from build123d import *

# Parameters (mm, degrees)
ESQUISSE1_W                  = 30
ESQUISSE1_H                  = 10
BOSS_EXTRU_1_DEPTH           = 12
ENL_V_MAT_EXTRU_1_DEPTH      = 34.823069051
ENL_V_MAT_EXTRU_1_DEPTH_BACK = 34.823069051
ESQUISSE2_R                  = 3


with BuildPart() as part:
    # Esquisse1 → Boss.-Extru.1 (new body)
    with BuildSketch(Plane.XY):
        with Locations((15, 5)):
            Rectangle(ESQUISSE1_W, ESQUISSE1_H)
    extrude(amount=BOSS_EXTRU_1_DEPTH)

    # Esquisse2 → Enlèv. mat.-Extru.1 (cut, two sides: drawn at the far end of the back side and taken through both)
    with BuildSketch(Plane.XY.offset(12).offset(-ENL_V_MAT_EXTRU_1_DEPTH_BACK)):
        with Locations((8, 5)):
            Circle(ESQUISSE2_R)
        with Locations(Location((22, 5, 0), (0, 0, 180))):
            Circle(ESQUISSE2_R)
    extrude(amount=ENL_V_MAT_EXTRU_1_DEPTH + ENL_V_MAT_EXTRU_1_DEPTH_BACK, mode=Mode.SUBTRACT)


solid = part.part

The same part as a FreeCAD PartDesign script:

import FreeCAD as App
import Part
import Sketcher
from FreeCAD import Vector
Q = App.Units.Quantity

doc = App.newDocument("Part")
params = doc.addObject("Spreadsheet::Sheet", "Params")
for row, (alias, value) in enumerate([
    ("sketch1_width", "30 mm"),
    ("sketch1_height", "10 mm"),
    ("pad1_length", "12 mm"),
    ("sketch2_diameter", "6 mm"),
], start=1):
    params.set(f"A{row}", alias)
    params.set(f"B{row}", "=" + value)
    params.setAlias(f"B{row}", alias)

body = doc.addObject("PartDesign::Body", "Body")

sketch1 = doc.addObject("Sketcher::SketchObject", "Sketch")
body.addObject(sketch1)
sketch1.AttachmentSupport = (doc.XY_Plane, [""])
sketch1.MapMode = "FlatFace"
sketch1.addGeometry([
    Part.LineSegment(Vector(0, 10, 0), Vector(0, 0, 0)),
    Part.LineSegment(Vector(0, 0, 0), Vector(30, 0, 0)),
    Part.LineSegment(Vector(30, 0, 0), Vector(30, 10, 0)),
    Part.LineSegment(Vector(30, 10, 0), Vector(0, 10, 0)),
], False)
sketch1.addConstraint([
    Sketcher.Constraint("Coincident", 0, 2, 1, 1),
    Sketcher.Constraint("Coincident", 1, 2, 2, 1),
    Sketcher.Constraint("Coincident", 2, 2, 3, 1),
    Sketcher.Constraint("Coincident", 3, 2, 0, 1),
    Sketcher.Constraint("Vertical", 0),
    Sketcher.Constraint("Horizontal", 1),
    Sketcher.Constraint("Vertical", 2),
    Sketcher.Constraint("Horizontal", 3),
    Sketcher.Constraint("Coincident", 0, 2, -1, 1),
    Sketcher.Constraint("DistanceX", 1, 1, 1, 2, Q("30 mm")),
    Sketcher.Constraint("DistanceY", 0, 2, 0, 1, Q("10 mm")),
])
sketch1.setExpression("Constraints[9]", "Params.sketch1_width")
sketch1.setExpression("Constraints[10]", "Params.sketch1_height")
pad1 = doc.addObject("PartDesign::Pad", "Pad")
body.addObject(pad1)
pad1.Profile = sketch1
pad1.setExpression("Length", "Params.pad1_length")

sketch2 = doc.addObject("Sketcher::SketchObject", "Sketch001")
body.addObject(sketch2)
sketch2.AttachmentSupport = (doc.XY_Plane, [""])
sketch2.MapMode = "FlatFace"
sketch2.AttachmentOffset = App.Placement(Vector(0, 0, 12), App.Rotation())
sketch2.addGeometry([
    Part.Circle(Vector(8, 5, 0), Vector(0, 0, 1), 3),
    Part.Circle(Vector(22, 5, 0), Vector(0, 0, 1), 3),
], False)
sketch2.addConstraint([
    Sketcher.Constraint("Equal", 0, 1),
    Sketcher.Constraint("Horizontal", 0, 3, 1, 3),
    Sketcher.Constraint("Diameter", 0, Q("6 mm")),
    Sketcher.Constraint("DistanceX", -1, 1, 0, 3, Q("8 mm")),
    Sketcher.Constraint("DistanceY", -1, 1, 0, 3, Q("5 mm")),
    Sketcher.Constraint("DistanceX", -1, 1, 1, 3, Q("22 mm")),
])
sketch2.setExpression("Constraints[2]", "Params.sketch2_diameter")
pocket1 = doc.addObject("PartDesign::Pocket", "Pocket")
body.addObject(pocket1)
pocket1.Profile = sketch2
pocket1.Type = "ThroughAll"
pocket1.Midplane = True

doc.recompute()
